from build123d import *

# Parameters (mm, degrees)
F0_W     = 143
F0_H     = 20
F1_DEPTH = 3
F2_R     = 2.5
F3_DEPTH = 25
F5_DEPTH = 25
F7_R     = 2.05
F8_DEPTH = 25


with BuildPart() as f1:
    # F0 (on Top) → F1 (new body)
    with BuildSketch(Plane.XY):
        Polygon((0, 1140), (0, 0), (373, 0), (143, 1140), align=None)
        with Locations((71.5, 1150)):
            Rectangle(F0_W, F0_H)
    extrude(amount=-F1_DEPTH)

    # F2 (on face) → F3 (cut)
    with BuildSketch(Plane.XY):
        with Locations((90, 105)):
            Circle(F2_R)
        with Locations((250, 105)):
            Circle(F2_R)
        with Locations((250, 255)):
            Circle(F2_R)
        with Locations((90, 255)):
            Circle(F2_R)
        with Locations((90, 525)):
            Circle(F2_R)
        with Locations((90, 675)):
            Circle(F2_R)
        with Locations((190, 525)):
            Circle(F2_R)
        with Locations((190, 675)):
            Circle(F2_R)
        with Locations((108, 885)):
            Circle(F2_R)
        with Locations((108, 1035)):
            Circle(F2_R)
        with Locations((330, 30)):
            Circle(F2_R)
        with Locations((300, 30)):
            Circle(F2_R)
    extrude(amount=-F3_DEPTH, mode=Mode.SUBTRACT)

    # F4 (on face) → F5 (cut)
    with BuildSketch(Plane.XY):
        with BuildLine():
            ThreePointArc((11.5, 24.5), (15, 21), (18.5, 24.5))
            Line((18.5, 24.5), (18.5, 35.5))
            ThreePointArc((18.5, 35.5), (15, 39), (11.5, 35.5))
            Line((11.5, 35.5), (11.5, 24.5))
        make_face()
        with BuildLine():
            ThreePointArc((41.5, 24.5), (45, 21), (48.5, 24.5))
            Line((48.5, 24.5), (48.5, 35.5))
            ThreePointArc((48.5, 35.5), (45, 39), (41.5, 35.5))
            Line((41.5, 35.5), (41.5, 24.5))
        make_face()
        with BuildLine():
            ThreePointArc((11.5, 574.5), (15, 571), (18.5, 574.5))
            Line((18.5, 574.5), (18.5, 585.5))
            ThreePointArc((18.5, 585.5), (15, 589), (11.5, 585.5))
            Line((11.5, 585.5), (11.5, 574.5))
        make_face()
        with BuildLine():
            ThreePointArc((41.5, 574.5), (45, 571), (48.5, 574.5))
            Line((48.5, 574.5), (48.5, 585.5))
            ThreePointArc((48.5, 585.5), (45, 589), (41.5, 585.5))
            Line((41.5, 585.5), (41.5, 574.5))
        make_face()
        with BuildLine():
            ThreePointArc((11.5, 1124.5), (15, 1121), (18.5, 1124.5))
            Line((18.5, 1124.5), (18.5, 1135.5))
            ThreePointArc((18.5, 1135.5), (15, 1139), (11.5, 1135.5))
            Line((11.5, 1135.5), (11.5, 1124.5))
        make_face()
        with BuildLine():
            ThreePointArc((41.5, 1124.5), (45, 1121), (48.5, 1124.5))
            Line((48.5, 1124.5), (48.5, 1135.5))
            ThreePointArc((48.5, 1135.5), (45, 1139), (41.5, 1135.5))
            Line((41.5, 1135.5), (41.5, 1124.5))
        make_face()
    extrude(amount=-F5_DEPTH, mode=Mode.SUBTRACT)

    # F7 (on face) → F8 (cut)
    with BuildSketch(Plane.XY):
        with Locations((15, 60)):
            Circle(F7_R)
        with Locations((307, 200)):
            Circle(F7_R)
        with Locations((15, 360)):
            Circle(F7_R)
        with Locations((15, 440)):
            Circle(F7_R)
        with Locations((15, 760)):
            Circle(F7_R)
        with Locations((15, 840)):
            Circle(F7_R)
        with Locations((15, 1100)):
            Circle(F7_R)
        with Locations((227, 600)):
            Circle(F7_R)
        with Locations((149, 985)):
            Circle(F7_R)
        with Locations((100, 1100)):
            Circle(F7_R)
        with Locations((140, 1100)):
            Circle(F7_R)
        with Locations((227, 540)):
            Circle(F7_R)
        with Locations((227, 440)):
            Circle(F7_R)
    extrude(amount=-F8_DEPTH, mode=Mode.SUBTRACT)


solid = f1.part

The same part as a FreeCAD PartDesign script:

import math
import FreeCAD as App
import Part
import Sketcher
Q = App.Units.Quantity


def add_polygon(sketch, points):
    """Adds a closed chain of lines whose ends are joined by coincident constraints."""
    first, n = sketch.GeometryCount, len(points)
    for a, b in zip(points, points[1:] + points[:1]):
        sketch.addGeometry(Part.LineSegment(App.Vector(*a, 0), App.Vector(*b, 0)), False)
    for i in range(n):
        sketch.addConstraint(Sketcher.Constraint("Coincident", first + i, 2, first + (i + 1) % n, 1))

doc = App.newDocument("Part")
body = doc.addObject("PartDesign::Body", "Body")

sketch1 = body.newObject("Sketcher::SketchObject", "Sketch")
sketch1.AttachmentSupport = (doc.getObject("XY_Plane"), [""])
sketch1.MapMode = "FlatFace"
add_polygon(sketch1, [(0, 0), (373, 0), (143, 1140), (143, 1160), (0, 1160)])
sketch1.addConstraint(Sketcher.Constraint("Horizontal", 0))
sketch1.addConstraint(Sketcher.Constraint("Vertical", 2))
sketch1.addConstraint(Sketcher.Constraint("Horizontal", 3))
sketch1.addConstraint(Sketcher.Constraint("Vertical", 4))
sketch1.addConstraint(Sketcher.Constraint("Coincident", 4, 2, -1, 1))
sketch1.addConstraint(Sketcher.Constraint("DistanceX", 0, 1, 0, 2, Q("373 mm")))
sketch1.addConstraint(Sketcher.Constraint("DistanceX", 3, 2, 3, 1, Q("143 mm")))
sketch1.addConstraint(Sketcher.Constraint("DistanceY", 2, 1, 2, 2, Q("20 mm")))
sketch1.addConstraint(Sketcher.Constraint("DistanceY", 4, 2, 4, 1, Q("1160 mm")))
pad1 = body.newObject("PartDesign::Pad", "Pad")
pad1.Profile = sketch1
pad1.Length = 3
pad1.Reversed = True

sketch2 = body.newObject("Sketcher::SketchObject", "Sketch001")
sketch2.AttachmentSupport = (doc.getObject("XY_Plane"), [""])
sketch2.MapMode = "FlatFace"
sketch2.addGeometry(Part.Circle(App.Vector(90, 105, 0), App.Vector(0, 0, 1), 2.5), False)
sketch2.addGeometry(Part.Circle(App.Vector(250, 105, 0), App.Vector(0, 0, 1), 2.5), False)
sketch2.addGeometry(Part.Circle(App.Vector(250, 255, 0), App.Vector(0, 0, 1), 2.5), False)
sketch2.addGeometry(Part.Circle(App.Vector(90, 255, 0), App.Vector(0, 0, 1), 2.5), False)
sketch2.addGeometry(Part.Circle(App.Vector(90, 525, 0), App.Vector(0, 0, 1), 2.5), False)
sketch2.addGeometry(Part.Circle(App.Vector(90, 675, 0), App.Vector(0, 0, 1), 2.5), False)
sketch2.addGeometry(Part.Circle(App.Vector(190, 525, 0), App.Vector(0, 0, 1), 2.5), False)
sketch2.addGeometry(Part.Circle(App.Vector(190, 675, 0), App.Vector(0, 0, 1), 2.5), False)
sketch2.addGeometry(Part.Circle(App.Vector(108, 885, 0), App.Vector(0, 0, 1), 2.5), False)
sketch2.addGeometry(Part.Circle(App.Vector(108, 1035, 0), App.Vector(0, 0, 1), 2.5), False)
sketch2.addGeometry(Part.Circle(App.Vector(330, 30, 0), App.Vector(0, 0, 1), 2.5), False)
sketch2.addGeometry(Part.Circle(App.Vector(300, 30, 0), App.Vector(0, 0, 1), 2.5), False)
sketch2.addConstraint(Sketcher.Constraint("Equal", 0, 1))
sketch2.addConstraint(Sketcher.Constraint("Equal", 1, 2))
sketch2.addConstraint(Sketcher.Constraint("Equal", 2, 3))
sketch2.addConstraint(Sketcher.Constraint("Equal", 3, 4))
sketch2.addConstraint(Sketcher.Constraint("Equal", 4, 5))
sketch2.addConstraint(Sketcher.Constraint("Equal", 5, 6))
sketch2.addConstraint(Sketcher.Constraint("Equal", 6, 7))
sketch2.addConstraint(Sketcher.Constraint("Equal", 7, 8))
sketch2.addConstraint(Sketcher.Constraint("Equal", 8, 9))
sketch2.addConstraint(Sketcher.Constraint("Equal", 9, 10))
sketch2.addConstraint(Sketcher.Constraint("Equal", 10, 11))
sketch2.addConstraint(Sketcher.Constraint("Horizontal", 0, 3, 1, 3))
sketch2.addConstraint(Sketcher.Constraint("Horizontal", 2, 3, 3, 3))
sketch2.addConstraint(Sketcher.Constraint("Horizontal", 4, 3, 6, 3))
sketch2.addConstraint(Sketcher.Constraint("Horizontal", 5, 3, 7, 3))
sketch2.addConstraint(Sketcher.Constraint("Horizontal", 10, 3, 11, 3))
sketch2.addConstraint(Sketcher.Constraint("Vertical", 1, 3, 2, 3))
sketch2.addConstraint(Sketcher.Constraint("Vertical", 0, 3, 3, 3))
sketch2.addConstraint(Sketcher.Constraint("Vertical", 3, 3, 4, 3))
sketch2.addConstraint(Sketcher.Constraint("Vertical", 4, 3, 5, 3))
sketch2.addConstraint(Sketcher.Constraint("Vertical", 6, 3, 7, 3))
sketch2.addConstraint(Sketcher.Constraint("Vertical", 8, 3, 9, 3))
sketch2.addConstraint(Sketcher.Constraint("Diameter", 0, Q("5 mm")))
sketch2.addConstraint(Sketcher.Constraint("DistanceX", -1, 1, 0, 3, Q("90 mm")))
sketch2.addConstraint(Sketcher.Constraint("DistanceY", -1, 1, 0, 3, Q("105 mm")))
sketch2.addConstraint(Sketcher.Constraint("DistanceX", -1, 1, 1, 3, Q("250 mm")))
sketch2.addConstraint(Sketcher.Constraint("DistanceY", -1, 1, 2, 3, Q("255 mm")))
sketch2.addConstraint(Sketcher.Constraint("DistanceY", -1, 1, 4, 3, Q("525 mm")))
sketch2.addConstraint(Sketcher.Constraint("DistanceY", -1, 1, 5, 3, Q("675 mm")))
sketch2.addConstraint(Sketcher.Constraint("DistanceX", -1, 1, 6, 3, Q("190 mm")))
sketch2.addConstraint(Sketcher.Constraint("DistanceX", -1, 1, 8, 3, Q("108 mm")))
sketch2.addConstraint(Sketcher.Constraint("DistanceY", -1, 1, 8, 3, Q("885 mm")))
sketch2.addConstraint(Sketcher.Constraint("DistanceY", -1, 1, 9, 3, Q("1035 mm")))
sketch2.addConstraint(Sketcher.Constraint("DistanceX", -1, 1, 10, 3, Q("330 mm")))
sketch2.addConstraint(Sketcher.Constraint("DistanceY", -1, 1, 10, 3, Q("30 mm")))
sketch2.addConstraint(Sketcher.Constraint("DistanceX", -1, 1, 11, 3, Q("300 mm")))
pocket1 = body.newObject("PartDesign::Pocket", "Pocket")
pocket1.Profile = sketch2
pocket1.Length = 25

sketch3 = body.newObject("Sketcher::SketchObject", "Sketch002")
sketch3.AttachmentSupport = (doc.getObject("XY_Plane"), [""])
sketch3.MapMode = "FlatFace"
sketch3.addGeometry(Part.ArcOfCircle(Part.Circle(App.Vector(15, 24.5, 0), App.Vector(0, 0, 1), 3.5), math.radians(180), math.radians(360)), False)
sketch3.addGeometry(Part.LineSegment(App.Vector(18.5, 24.5, 0), App.Vector(18.5, 35.5, 0)), False)
sketch3.addGeometry(Part.ArcOfCircle(Part.Circle(App.Vector(15, 35.5, 0), App.Vector(0, 0, 1), 3.5), math.radians(0), math.radians(180)), False)
sketch3.addGeometry(Part.LineSegment(App.Vector(11.5, 35.5, 0), App.Vector(11.5, 24.5, 0)), False)
sketch3.addGeometry(Part.ArcOfCircle(Part.Circle(App.Vector(45, 24.5, 0), App.Vector(0, 0, 1), 3.5), math.radians(180), math.radians(360)), False)
sketch3.addGeometry(Part.LineSegment(App.Vector(48.5, 24.5, 0), App.Vector(48.5, 35.5, 0)), False)
sketch3.addGeometry(Part.ArcOfCircle(Part.Circle(App.Vector(45, 35.5, 0), App.Vector(0, 0, 1), 3.5), math.radians(0), math.radians(180)), False)
sketch3.addGeometry(Part.LineSegment(App.Vector(41.5, 35.5, 0), App.Vector(41.5, 24.5, 0)), False)
sketch3.addGeometry(Part.ArcOfCircle(Part.Circle(App.Vector(15, 574.5, 0), App.Vector(0, 0, 1), 3.5), math.radians(180), math.radians(360)), False)
sketch3.addGeometry(Part.LineSegment(App.Vector(18.5, 574.5, 0), App.Vector(18.5, 585.5, 0)), False)
sketch3.addGeometry(Part.ArcOfCircle(Part.Circle(App.Vector(15, 585.5, 0), App.Vector(0, 0, 1), 3.5), math.radians(0), math.radians(180)), False)
sketch3.addGeometry(Part.LineSegment(App.Vector(11.5, 585.5, 0), App.Vector(11.5, 574.5, 0)), False)
sketch3.addGeometry(Part.ArcOfCircle(Part.Circle(App.Vector(45, 574.5, 0), App.Vector(0, 0, 1), 3.5), math.radians(180), math.radians(360)), False)
sketch3.addGeometry(Part.LineSegment(App.Vector(48.5, 574.5, 0), App.Vector(48.5, 585.5, 0)), False)
sketch3.addGeometry(Part.ArcOfCircle(Part.Circle(App.Vector(45, 585.5, 0), App.Vector(0, 0, 1), 3.5), math.radians(0), math.radians(180)), False)
sketch3.addGeometry(Part.LineSegment(App.Vector(41.5, 585.5, 0), App.Vector(41.5, 574.5, 0)), False)
sketch3.addGeometry(Part.ArcOfCircle(Part.Circle(App.Vector(15, 1124.5, 0), App.Vector(0, 0, 1), 3.5), math.radians(180), math.radians(360)), False)
sketch3.addGeometry(Part.LineSegment(App.Vector(18.5, 1124.5, 0), App.Vector(18.5, 1135.5, 0)), False)
sketch3.addGeometry(Part.ArcOfCircle(Part.Circle(App.Vector(15, 1135.5, 0), App.Vector(0, 0, 1), 3.5), math.radians(0), math.radians(180)), False)
sketch3.addGeometry(Part.LineSegment(App.Vector(11.5, 1135.5, 0), App.Vector(11.5, 1124.5, 0)), False)
sketch3.addGeometry(Part.ArcOfCircle(Part.Circle(App.Vector(45, 1124.5, 0), App.Vector(0, 0, 1), 3.5), math.radians(180), math.radians(360)), False)
sketch3.addGeometry(Part.LineSegment(App.Vector(48.5, 1124.5, 0), App.Vector(48.5, 1135.5, 0)), False)
sketch3.addGeometry(Part.ArcOfCircle(Part.Circle(App.Vector(45, 1135.5, 0), App.Vector(0, 0, 1), 3.5), math.radians(0), math.radians(180)), False)
sketch3.addGeometry(Part.LineSegment(App.Vector(41.5, 1135.5, 0), App.Vector(41.5, 1124.5, 0)), False)
sketch3.addConstraint(Sketcher.Constraint("Tangent", 0, 2, 1, 1))
sketch3.addConstraint(Sketcher.Constraint("Tangent", 1, 2, 2, 1))
sketch3.addConstraint(Sketcher.Constraint("Tangent", 2, 2, 3, 1))
sketch3.addConstraint(Sketcher.Constraint("Tangent", 3, 2, 0, 1))
sketch3.addConstraint(Sketcher.Constraint("Tangent", 4, 2, 5, 1))
sketch3.addConstraint(Sketcher.Constraint("Tangent", 5, 2, 6, 1))
sketch3.addConstraint(Sketcher.Constraint("Tangent", 6, 2, 7, 1))
sketch3.addConstraint(Sketcher.Constraint("Tangent", 7, 2, 4, 1))
sketch3.addConstraint(Sketcher.Constraint("Tangent", 8, 2, 9, 1))
sketch3.addConstraint(Sketcher.Constraint("Tangent", 9, 2, 10, 1))
sketch3.addConstraint(Sketcher.Constraint("Tangent", 10, 2, 11, 1))
sketch3.addConstraint(Sketcher.Constraint("Tangent", 11, 2, 8, 1))
sketch3.addConstraint(Sketcher.Constraint("Tangent", 12, 2, 13, 1))
sketch3.addConstraint(Sketcher.Constraint("Tangent", 13, 2, 14, 1))
sketch3.addConstraint(Sketcher.Constraint("Tangent", 14, 2, 15, 1))
sketch3.addConstraint(Sketcher.Constraint("Tangent", 15, 2, 12, 1))
sketch3.addConstraint(Sketcher.Constraint("Tangent", 16, 2, 17, 1))
sketch3.addConstraint(Sketcher.Constraint("Tangent", 17, 2, 18, 1))
sketch3.addConstraint(Sketcher.Constraint("Tangent", 18, 2, 19, 1))
sketch3.addConstraint(Sketcher.Constraint("Tangent", 19, 2, 16, 1))
sketch3.addConstraint(Sketcher.Constraint("Tangent", 20, 2, 21, 1))
sketch3.addConstraint(Sketcher.Constraint("Tangent", 21, 2, 22, 1))
sketch3.addConstraint(Sketcher.Constraint("Tangent", 22, 2, 23, 1))
sketch3.addConstraint(Sketcher.Constraint("Tangent", 23, 2, 20, 1))
sketch3.addConstraint(Sketcher.Constraint("Vertical", 1))
sketch3.addConstraint(Sketcher.Constraint("Vertical", 3))
sketch3.addConstraint(Sketcher.Constraint("Vertical", 5))
sketch3.addConstraint(Sketcher.Constraint("Vertical", 7))
sketch3.addConstraint(Sketcher.Constraint("Vertical", 9))
sketch3.addConstraint(Sketcher.Constraint("Vertical", 11))
sketch3.addConstraint(Sketcher.Constraint("Vertical", 13))
sketch3.addConstraint(Sketcher.Constraint("Vertical", 15))
sketch3.addConstraint(Sketcher.Constraint("Vertical", 17))
sketch3.addConstraint(Sketcher.Constraint("Vertical", 19))
sketch3.addConstraint(Sketcher.Constraint("Vertical", 21))
sketch3.addConstraint(Sketcher.Constraint("Vertical", 23))
sketch3.addConstraint(Sketcher.Constraint("Equal", 2, 4))
sketch3.addConstraint(Sketcher.Constraint("Equal", 6, 8))
sketch3.addConstraint(Sketcher.Constraint("Equal", 10, 12))
sketch3.addConstraint(Sketcher.Constraint("Equal", 14, 16))
sketch3.addConstraint(Sketcher.Constraint("Equal", 18, 20))
sketch3.addConstraint(Sketcher.Constraint("Horizontal", 0, 3, 4, 3))
sketch3.addConstraint(Sketcher.Constraint("Horizontal", 2, 3, 6, 3))
sketch3.addConstraint(Sketcher.Constraint("Horizontal", 8, 3, 12, 3))
sketch3.addConstraint(Sketcher.Constraint("Horizontal", 10, 3, 14, 3))
sketch3.addConstraint(Sketcher.Constraint("Horizontal", 16, 3, 20, 3))
sketch3.addConstraint(Sketcher.Constraint("Horizontal", 18, 3, 22, 3))
sketch3.addConstraint(Sketcher.Constraint("Vertical", 2, 3, 8, 3))
sketch3.addConstraint(Sketcher.Constraint("Vertical", 6, 3, 12, 3))
sketch3.addConstraint(Sketcher.Constraint("Vertical", 10, 3, 16, 3))
sketch3.addConstraint(Sketcher.Constraint("Vertical", 14, 3, 20, 3))
sketch3.addConstraint(Sketcher.Constraint("Equal", 7, 9))
sketch3.addConstraint(Sketcher.Constraint("Equal", 15, 17))
sketch3.addConstraint(Sketcher.Constraint("Radius", 0, Q("3.5 mm")))
sketch3.addConstraint(Sketcher.Constraint("DistanceY", 1, 1, 1, 2, Q("11 mm")))
sketch3.addConstraint(Sketcher.Constraint("DistanceX", -1, 1, 0, 3, Q("15 mm")))
sketch3.addConstraint(Sketcher.Constraint("DistanceX", -1, 1, 4, 3, Q("45 mm")))
sketch3.addConstraint(Sketcher.Constraint("DistanceY", 2, 3, 8, 3, Q("539 mm")))
sketch3.addConstraint(Sketcher.Constraint("DistanceY", 10, 3, 16, 3, Q("539 mm")))
sketch3.addConstraint(Sketcher.Constraint("DistanceY", -1, 1, 0, 3, Q("24.5 mm")))
pocket2 = body.newObject("PartDesign::Pocket", "Pocket001")
pocket2.Profile = sketch3
pocket2.Length = 25

sketch4 = body.newObject("Sketcher::SketchObject", "Sketch003")
sketch4.AttachmentSupport = (doc.getObject("XY_Plane"), [""])
sketch4.MapMode = "FlatFace"
sketch4.addGeometry(Part.Circle(App.Vector(15, 60, 0), App.Vector(0, 0, 1), 2), False)
sketch4.addGeometry(Part.Circle(App.Vector(307, 200, 0), App.Vector(0, 0, 1), 2), False)
sketch4.addGeometry(Part.Circle(App.Vector(15, 360, 0), App.Vector(0, 0, 1), 2), False)
sketch4.addGeometry(Part.Circle(App.Vector(15, 440, 0), App.Vector(0, 0, 1), 2), False)
sketch4.addGeometry(Part.Circle(App.Vector(15, 760, 0), App.Vector(0, 0, 1), 2), False)
sketch4.addGeometry(Part.Circle(App.Vector(15, 840, 0), App.Vector(0, 0, 1), 2), False)
sketch4.addGeometry(Part.Circle(App.Vector(15, 1100, 0), App.Vector(0, 0, 1), 2), False)
sketch4.addGeometry(Part.Circle(App.Vector(227, 600, 0), App.Vector(0, 0, 1), 2), False)
sketch4.addGeometry(Part.Circle(App.Vector(149, 985, 0), App.Vector(0, 0, 1), 2), False)
sketch4.addGeometry(Part.Circle(App.Vector(100, 1100, 0), App.Vector(0, 0, 1), 2), False)
sketch4.addGeometry(Part.Circle(App.Vector(140, 1100, 0), App.Vector(0, 0, 1), 2), False)
sketch4.addGeometry(Part.Circle(App.Vector(227, 540, 0), App.Vector(0, 0, 1), 2), False)
sketch4.addGeometry(Part.Circle(App.Vector(227, 440, 0), App.Vector(0, 0, 1), 2), False)
sketch4.addConstraint(Sketcher.Constraint("Equal", 0, 1))
sketch4.addConstraint(Sketcher.Constraint("Equal", 1, 2))
sketch4.addConstraint(Sketcher.Constraint("Equal", 2, 3))
sketch4.addConstraint(Sketcher.Constraint("Equal", 3, 4))
sketch4.addConstraint(Sketcher.Constraint("Equal", 4, 5))
sketch4.addConstraint(Sketcher.Constraint("Equal", 5, 6))
sketch4.addConstraint(Sketcher.Constraint("Equal", 6, 7))
sketch4.addConstraint(Sketcher.Constraint("Equal", 7, 8))
sketch4.addConstraint(Sketcher.Constraint("Equal", 8, 9))
sketch4.addConstraint(Sketcher.Constraint("Equal", 9, 10))
sketch4.addConstraint(Sketcher.Constraint("Equal", 10, 11))
sketch4.addConstraint(Sketcher.Constraint("Equal", 11, 12))
sketch4.addConstraint(Sketcher.Constraint("Horizontal", 6, 3, 9, 3))
sketch4.addConstraint(Sketcher.Constraint("Horizontal", 9, 3, 10, 3))
sketch4.addConstraint(Sketcher.Constraint("Horizontal", 3, 3, 12, 3))
sketch4.addConstraint(Sketcher.Constraint("Vertical", 0, 3, 2, 3))
sketch4.addConstraint(Sketcher.Constraint("Vertical", 2, 3, 3, 3))
sketch4.addConstraint(Sketcher.Constraint("Vertical", 3, 3, 4, 3))
sketch4.addConstraint(Sketcher.Constraint("Vertical", 4, 3, 5, 3))
sketch4.addConstraint(Sketcher.Constraint("Vertical", 5, 3, 6, 3))
sketch4.addConstraint(Sketcher.Constraint("Vertical", 7, 3, 11, 3))
sketch4.addConstraint(Sketcher.Constraint("Vertical", 11, 3, 12, 3))
sketch4.addConstraint(Sketcher.Constraint("Diameter", 0, Q("4.1 mm")))
sketch4.addConstraint(Sketcher.Constraint("DistanceX", -1, 1, 0, 3, Q("15 mm")))
sketch4.addConstraint(Sketcher.Constraint("DistanceY", -1, 1, 0, 3, Q("60 mm")))
sketch4.addConstraint(Sketcher.Constraint("DistanceX", -1, 1, 1, 3, Q("307 mm")))
sketch4.addConstraint(Sketcher.Constraint("DistanceY", -1, 1, 1, 3, Q("200 mm")))
sketch4.addConstraint(Sketcher.Constraint("DistanceY", -1, 1, 2, 3, Q("360 mm")))
sketch4.addConstraint(Sketcher.Constraint("DistanceY", -1, 1, 3, 3, Q("440 mm")))
sketch4.addConstraint(Sketcher.Constraint("DistanceY", -1, 1, 4, 3, Q("760 mm")))
sketch4.addConstraint(Sketcher.Constraint("DistanceY", -1, 1, 5, 3, Q("840 mm")))
sketch4.addConstraint(Sketcher.Constraint("DistanceY", -1, 1, 6, 3, Q("1100 mm")))
sketch4.addConstraint(Sketcher.Constraint("DistanceX", -1, 1, 7, 3, Q("227 mm")))
sketch4.addConstraint(Sketcher.Constraint("DistanceY", -1, 1, 7, 3, Q("600 mm")))
sketch4.addConstraint(Sketcher.Constraint("DistanceX", -1, 1, 8, 3, Q("149 mm")))
sketch4.addConstraint(Sketcher.Constraint("DistanceY", -1, 1, 8, 3, Q("985 mm")))
sketch4.addConstraint(Sketcher.Constraint("DistanceX", -1, 1, 9, 3, Q("100 mm")))
sketch4.addConstraint(Sketcher.Constraint("DistanceX", -1, 1, 10, 3, Q("140 mm")))
sketch4.addConstraint(Sketcher.Constraint("DistanceY", -1, 1, 11, 3, Q("540 mm")))
pocket3 = body.newObject("PartDesign::Pocket", "Pocket002")
pocket3.Profile = sketch4
pocket3.Length = 25

doc.recompute()
